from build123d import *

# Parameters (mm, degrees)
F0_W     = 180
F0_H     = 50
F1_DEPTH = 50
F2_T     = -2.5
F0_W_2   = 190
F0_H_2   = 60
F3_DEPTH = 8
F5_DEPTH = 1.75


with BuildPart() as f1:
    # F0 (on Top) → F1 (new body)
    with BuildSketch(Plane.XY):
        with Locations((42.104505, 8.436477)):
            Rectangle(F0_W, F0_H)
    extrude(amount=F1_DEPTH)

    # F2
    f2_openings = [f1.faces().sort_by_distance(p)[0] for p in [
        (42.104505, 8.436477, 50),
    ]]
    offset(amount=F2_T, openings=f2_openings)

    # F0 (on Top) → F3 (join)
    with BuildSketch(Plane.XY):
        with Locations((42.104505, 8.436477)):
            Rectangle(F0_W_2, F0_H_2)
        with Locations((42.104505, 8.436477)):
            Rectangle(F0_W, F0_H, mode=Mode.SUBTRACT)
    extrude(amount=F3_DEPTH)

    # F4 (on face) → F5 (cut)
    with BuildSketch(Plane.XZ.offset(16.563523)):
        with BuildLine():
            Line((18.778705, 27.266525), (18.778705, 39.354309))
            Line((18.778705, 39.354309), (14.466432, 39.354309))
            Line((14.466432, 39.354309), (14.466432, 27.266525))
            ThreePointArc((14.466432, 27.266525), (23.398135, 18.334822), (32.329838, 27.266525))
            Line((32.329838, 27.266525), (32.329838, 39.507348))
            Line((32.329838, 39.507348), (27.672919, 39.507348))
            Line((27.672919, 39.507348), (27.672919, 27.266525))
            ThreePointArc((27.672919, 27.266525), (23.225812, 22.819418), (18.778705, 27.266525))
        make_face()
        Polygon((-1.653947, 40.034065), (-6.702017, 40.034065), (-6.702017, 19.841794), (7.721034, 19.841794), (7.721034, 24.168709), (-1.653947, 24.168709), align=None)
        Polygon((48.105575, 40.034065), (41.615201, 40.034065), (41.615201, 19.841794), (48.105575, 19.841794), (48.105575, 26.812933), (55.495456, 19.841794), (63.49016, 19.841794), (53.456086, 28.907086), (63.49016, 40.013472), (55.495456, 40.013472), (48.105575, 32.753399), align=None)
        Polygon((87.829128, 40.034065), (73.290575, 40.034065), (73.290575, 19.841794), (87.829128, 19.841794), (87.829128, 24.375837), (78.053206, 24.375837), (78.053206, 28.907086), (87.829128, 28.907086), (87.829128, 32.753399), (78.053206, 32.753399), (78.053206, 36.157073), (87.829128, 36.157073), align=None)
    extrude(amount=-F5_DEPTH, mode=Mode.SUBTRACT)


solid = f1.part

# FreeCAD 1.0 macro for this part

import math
import FreeCAD as App
import Part
import Sketcher

V = App.Vector


def faces_at(feature, points):
    """Names of the faces that lie closest to the given points."""
    faces = feature.Shape.Faces
    near = lambda p: min(range(len(faces)), key=lambda i: faces[i].distToShape(Part.Vertex(*p))[0])
    return sorted({f"Face{near(p) + 1}" for p in points})


def add_polygon(sketch, points):
    """Adds a closed chain of lines whose ends are joined by coincident constraints."""
    first, n = sketch.GeometryCount, len(points)
    for a, b in zip(points, points[1:] + points[:1]):
        sketch.addGeometry(Part.LineSegment(App.Vector(*a, 0), App.Vector(*b, 0)), False)
    for i in range(n):
        sketch.addConstraint(Sketcher.Constraint("Coincident", first + i, 2, first + (i + 1) % n, 1))

doc = App.newDocument("Part")
params = doc.addObject("Spreadsheet::Sheet", "Params")
for row, (alias, value) in enumerate([
    ("sketch1_width", "180 mm"),
    ("sketch1_height", "50 mm"),
    ("pad1_length", "50 mm"),
    ("thickness_wall", "2.5 mm"),
    ("sketch2_width", "190 mm"),
    ("sketch2_width2", "180 mm"),
    ("sketch2_height", "60 mm"),
    ("sketch2_height2", "50 mm"),
    ("pad2_length", "8 mm"),
    ("pocket1_length", "1.75 mm"),
], start=1):
    params.set(f"A{row}", alias)
    params.set(f"B{row}", "=" + value)
    params.setAlias(f"B{row}", alias)

body = doc.addObject("PartDesign::Body", "Body")

sketch1 = body.newObject("Sketcher::SketchObject", "Sketch")
sketch1.AttachmentSupport = (doc.getObject("XY_Plane"), [""])
sketch1.MapMode = "FlatFace"
add_polygon(sketch1, [(-48, 33), (-48, -17), (132, -17), (132, 33)])
sketch1.addConstraint(Sketcher.Constraint("Vertical", 0))
sketch1.addConstraint(Sketcher.Constraint("Horizontal", 1))
sketch1.addConstraint(Sketcher.Constraint("Vertical", 2))
sketch1.addConstraint(Sketcher.Constraint("Horizontal", 3))
sketch1.addConstraint(Sketcher.Constraint("DistanceX", 1, 1, 1, 2, 180.0))
sketch1.addConstraint(Sketcher.Constraint("DistanceY", 0, 2, 0, 1, 50.0))
sketch1.addConstraint(Sketcher.Constraint("DistanceX", 0, 2, -1, 1, 47.895495))
sketch1.addConstraint(Sketcher.Constraint("DistanceY", 0, 2, -1, 1, 16.563523))
sketch1.setExpression("Constraints[8]", "Params.sketch1_width")
sketch1.setExpression("Constraints[9]", "Params.sketch1_height")
pad1 = body.newObject("PartDesign::Pad", "Pad")
pad1.Profile = sketch1
pad1.setExpression("Length", "Params.pad1_length")
doc.recompute()

thickness = body.newObject("PartDesign::Thickness", "Thickness")
thickness.Base = (pad1, faces_at(pad1, [(42.105, 8.436, 50)]))
thickness.setExpression("Value", "Params.thickness_wall")
thickness.Reversed = True
thickness.Join = "Arc"

sketch2 = body.newObject("Sketcher::SketchObject", "Sketch001")
sketch2.AttachmentSupport = (doc.getObject("XY_Plane"), [""])
sketch2.MapMode = "FlatFace"
add_polygon(sketch2, [(-53, 38), (-53, -22), (137, -22), (137, 38)])
add_polygon(sketch2, [(132, -17), (-48, -17), (-48, 33), (132, 33)])
sketch2.addConstraint(Sketcher.Constraint("Vertical", 0))
sketch2.addConstraint(Sketcher.Constraint("Horizontal", 1))
sketch2.addConstraint(Sketcher.Constraint("Vertical", 2))
sketch2.addConstraint(Sketcher.Constraint("Horizontal", 3))
sketch2.addConstraint(Sketcher.Constraint("Horizontal", 4))
sketch2.addConstraint(Sketcher.Constraint("Vertical", 5))
sketch2.addConstraint(Sketcher.Constraint("Horizontal", 6))
sketch2.addConstraint(Sketcher.Constraint("Vertical", 7))
sketch2.addConstraint(Sketcher.Constraint("DistanceX", 1, 1, 1, 2, 190.0))
sketch2.addConstraint(Sketcher.Constraint("DistanceX", 4, 2, 4, 1, 180.0))
sketch2.addConstraint(Sketcher.Constraint("DistanceY", 0, 2, 0, 1, 60.0))
sketch2.addConstraint(Sketcher.Constraint("DistanceY", 5, 1, 5, 2, 50.0))
sketch2.addConstraint(Sketcher.Constraint("DistanceX", 0, 2, 4, 2, 5.0))
sketch2.addConstraint(Sketcher.Constraint("DistanceY", 0, 2, 4, 2, 5.0))
sketch2.addConstraint(Sketcher.Constraint("DistanceX", 0, 2, -1, 1, 52.895495))
sketch2.addConstraint(Sketcher.Constraint("DistanceY", 0, 2, -1, 1, 21.563523))
sketch2.setExpression("Constraints[16]", "Params.sketch2_width")
sketch2.setExpression("Constraints[17]", "Params.sketch2_width2")
sketch2.setExpression("Constraints[18]", "Params.sketch2_height")
sketch2.setExpression("Constraints[19]", "Params.sketch2_height2")
pad2 = body.newObject("PartDesign::Pad", "Pad001")
pad2.Profile = sketch2
pad2.setExpression("Length", "Params.pad2_length")

sketch3 = body.newObject("Sketcher::SketchObject", "Sketch002")
sketch3.AttachmentSupport = (doc.getObject("XZ_Plane"), [""])
sketch3.MapMode = "FlatFace"
sketch3.AttachmentOffset = App.Placement(V(0, 0, 16.563523), App.Rotation())
sketch3.addGeometry(Part.LineSegment(V(18.8, 27.3, 0), V(18.8, 39.4, 0)), False)
sketch3.addGeometry(Part.LineSegment(V(18.8, 39.4, 0), V(14.5, 39.4, 0)), False)
sketch3.addGeometry(Part.LineSegment(V(14.5, 39.4, 0), V(14.5, 27.3, 0)), False)
sketch3.addGeometry(Part.ArcOfCircle(Part.Circle(V(23.4, 27.3, 0), V(0, 0, 1), 8.9), math.radians(180), math.radians(360)), False)
sketch3.addGeometry(Part.LineSegment(V(32.3, 27.3, 0), V(32.3, 39.5, 0)), False)
sketch3.addGeometry(Part.LineSegment(V(32.3, 39.5, 0), V(27.7, 39.5, 0)), False)
sketch3.addGeometry(Part.LineSegment(V(27.7, 39.5, 0), V(27.7, 27.3, 0)), False)
sketch3.addGeometry(Part.ArcOfCircle(Part.Circle(V(23.2, 27.3, 0), V(0, 0, 1), 4.4), math.radians(180), math.radians(360)), False)
add_polygon(sketch3, [(-1.7, 40), (-6.7, 40), (-6.7, 19.8), (7.7, 19.8), (7.7, 24.2), (-1.7, 24.2)])
add_polygon(sketch3, [(48.1, 40), (41.6, 40), (41.6, 19.8), (48.1, 19.8), (48.1, 26.8), (55.5, 19.8), (63.5, 19.8), (53.5, 28.9), (63.5, 40), (55.5, 40), (48.1, 32.8)])
add_polygon(sketch3, [(87.8, 40), (73.3, 40), (73.3, 19.8), (87.8, 19.8), (87.8, 24.4), (78.1, 24.4), (78.1, 28.9), (87.8, 28.9), (87.8, 32.8), (78.1, 32.8), (78.1, 36.2), (87.8, 36.2)])
sketch3.addConstraint(Sketcher.Constraint("Coincident", 0, 2, 1, 1))
sketch3.addConstraint(Sketcher.Constraint("Coincident", 1, 2, 2, 1))
sketch3.addConstraint(Sketcher.Constraint("Tangent", 2, 2, 3, 1))
sketch3.addConstraint(Sketcher.Constraint("Tangent", 3, 2, 4, 1))
sketch3.addConstraint(Sketcher.Constraint("Coincident", 4, 2, 5, 1))
sketch3.addConstraint(Sketcher.Constraint("Coincident", 5, 2, 6, 1))
sketch3.addConstraint(Sketcher.Constraint("Tangent", 6, 2, 7, 2))
sketch3.addConstraint(Sketcher.Constraint("Tangent", 7, 1, 0, 1))
sketch3.addConstraint(Sketcher.Constraint("Vertical", 0))
sketch3.addConstraint(Sketcher.Constraint("Horizontal", 1))
sketch3.addConstraint(Sketcher.Constraint("Vertical", 2))
sketch3.addConstraint(Sketcher.Constraint("Vertical", 4))
sketch3.addConstraint(Sketcher.Constraint("Horizontal", 5))
sketch3.addConstraint(Sketcher.Constraint("Vertical", 6))
sketch3.addConstraint(Sketcher.Constraint("Horizontal", 8))
sketch3.addConstraint(Sketcher.Constraint("Vertical", 9))
sketch3.addConstraint(Sketcher.Constraint("Horizontal", 10))
sketch3.addConstraint(Sketcher.Constraint("Vertical", 11))
sketch3.addConstraint(Sketcher.Constraint("Horizontal", 12))
sketch3.addConstraint(Sketcher.Constraint("Vertical", 13))
sketch3.addConstraint(Sketcher.Constraint("Horizontal", 14))
sketch3.addConstraint(Sketcher.Constraint("Vertical", 15))
sketch3.addConstraint(Sketcher.Constraint("Horizontal", 16))
sketch3.addConstraint(Sketcher.Constraint("Vertical", 17))
sketch3.addConstraint(Sketcher.Constraint("Horizontal", 19))
sketch3.addConstraint(Sketcher.Constraint("Horizontal", 22))
sketch3.addConstraint(Sketcher.Constraint("Vertical", 24))
sketch3.addConstraint(Sketcher.Constraint("Horizontal", 25))
sketch3.addConstraint(Sketcher.Constraint("Vertical", 26))
sketch3.addConstraint(Sketcher.Constraint("Horizontal", 27))
sketch3.addConstraint(Sketcher.Constraint("Vertical", 28))
sketch3.addConstraint(Sketcher.Constraint("Horizontal", 29))
sketch3.addConstraint(Sketcher.Constraint("Vertical", 30))
sketch3.addConstraint(Sketcher.Constraint("Horizontal", 31))
sketch3.addConstraint(Sketcher.Constraint("Vertical", 32))
sketch3.addConstraint(Sketcher.Constraint("Horizontal", 33))
sketch3.addConstraint(Sketcher.Constraint("Vertical", 34))
sketch3.addConstraint(Sketcher.Constraint("Horizontal", 35))
sketch3.addConstraint(Sketcher.Constraint("Vertical", 36))
sketch3.addConstraint(Sketcher.Constraint("Perpendicular", 20, 21))
sketch3.addConstraint(Sketcher.Constraint("Horizontal", 3, 3, 7, 3))
sketch3.addConstraint(Sketcher.Constraint("Horizontal", 13, 2, 14, 2))
sketch3.addConstraint(Sketcher.Constraint("Horizontal", 10, 2, 15, 2))
sketch3.addConstraint(Sketcher.Constraint("Horizontal", 16, 2, 18, 2))
sketch3.addConstraint(Sketcher.Constraint("Horizontal", 24, 2, 25, 2))
sketch3.addConstraint(Sketcher.Constraint("Horizontal", 19, 2, 26, 2))
sketch3.addConstraint(Sketcher.Constraint("Horizontal", 20, 2, 30, 2))
sketch3.addConstraint(Sketcher.Constraint("Horizontal", 23, 2, 32, 2))
sketch3.addConstraint(Sketcher.Constraint("Vertical", 19, 2, 21, 2))
sketch3.addConstraint(Sketcher.Constraint("Vertical", 18, 2, 22, 2))
sketch3.addConstraint(Sketcher.Constraint("Vertical", 17, 2, 23, 2))
sketch3.addConstraint(Sketcher.Constraint("Vertical", 28, 2, 31, 2))
sketch3.addConstraint(Sketcher.Constraint("Vertical", 30, 2, 33, 2))
sketch3.addConstraint(Sketcher.Constraint("Vertical", 32, 2, 35, 2))
sketch3.addConstraint(Sketcher.Constraint("Radius", 3, 8.931703))
sketch3.addConstraint(Sketcher.Constraint("Radius", 7, 4.447107))
sketch3.addConstraint(Sketcher.Constraint("DistanceX", 24, 2, 25, 2, 25.185))
sketch3.addConstraint(Sketcher.Constraint("DistanceX", 5, 2, 5, 1, 4.656919))
sketch3.addConstraint(Sketcher.Constraint("DistanceX", 8, 2, 8, 1, 5.04807))
sketch3.addConstraint(Sketcher.Constraint("DistanceX", 10, 1, 10, 2, 14.423051))
sketch3.addConstraint(Sketcher.Constraint("DistanceX", 29, 2, 29, 1, 9.775922))
sketch3.addConstraint(Sketcher.Constraint("DistanceY", 9, 2, 9, 1, 20.192271))
sketch3.addConstraint(Sketcher.Constraint("DistanceY", 17, 1, 17, 2, 6.971139))
sketch3.addConstraint(Sketcher.Constraint("DistanceY", 30, 1, 30, 2, 4.531249))
sketch3.addConstraint(Sketcher.Constraint("DistanceX", -1, 1, 14, 2, 41.615201))
sketch3.addConstraint(Sketcher.Constraint("DistanceY", -1, 1, 23, 2, 32.753399))
sketch3.addConstraint(Sketcher.Constraint("DistanceX", 10, 2, 3, 3, 15.677101))
sketch3.addConstraint(Sketcher.Constraint("Distance", 18, 10.159091))
sketch3.addConstraint(Sketcher.Constraint("Distance", 21, 14.96778))
sketch3.addConstraint(Sketcher.Constraint("Distance", 23, 10.359488))
sketch3.addConstraint(Sketcher.Constraint("DistanceX", 14, 2, 14, 1, 6.490374))
sketch3.addConstraint(Sketcher.Constraint("DistanceX", 19, 1, 19, 2, 7.994704))
sketch3.addConstraint(Sketcher.Constraint("DistanceX", 25, 2, 25, 1, 14.538553))
sketch3.addConstraint(Sketcher.Constraint("DistanceY", 0, 1, 0, 2, 12.087784))
sketch3.addConstraint(Sketcher.Constraint("DistanceY", 4, 1, 4, 2, 12.240823))
sketch3.addConstraint(Sketcher.Constraint("DistanceY", 11, 1, 11, 2, 4.326915))
sketch3.addConstraint(Sketcher.Constraint("DistanceY", 24, 1, 24, 2, 7.280666))
sketch3.addConstraint(Sketcher.Constraint("DistanceY", 34, 1, 34, 2, 3.403674))
sketch3.addConstraint(Sketcher.Constraint("DistanceY", -1, 1, 0, 2, 39.354309))
sketch3.addConstraint(Sketcher.Constraint("DistanceX", -1, 1, 1, 2, 14.466432))
pocket1 = body.newObject("PartDesign::Pocket", "Pocket")
pocket1.Profile = sketch3
pocket1.setExpression("Length", "Params.pocket1_length")

doc.recompute()
